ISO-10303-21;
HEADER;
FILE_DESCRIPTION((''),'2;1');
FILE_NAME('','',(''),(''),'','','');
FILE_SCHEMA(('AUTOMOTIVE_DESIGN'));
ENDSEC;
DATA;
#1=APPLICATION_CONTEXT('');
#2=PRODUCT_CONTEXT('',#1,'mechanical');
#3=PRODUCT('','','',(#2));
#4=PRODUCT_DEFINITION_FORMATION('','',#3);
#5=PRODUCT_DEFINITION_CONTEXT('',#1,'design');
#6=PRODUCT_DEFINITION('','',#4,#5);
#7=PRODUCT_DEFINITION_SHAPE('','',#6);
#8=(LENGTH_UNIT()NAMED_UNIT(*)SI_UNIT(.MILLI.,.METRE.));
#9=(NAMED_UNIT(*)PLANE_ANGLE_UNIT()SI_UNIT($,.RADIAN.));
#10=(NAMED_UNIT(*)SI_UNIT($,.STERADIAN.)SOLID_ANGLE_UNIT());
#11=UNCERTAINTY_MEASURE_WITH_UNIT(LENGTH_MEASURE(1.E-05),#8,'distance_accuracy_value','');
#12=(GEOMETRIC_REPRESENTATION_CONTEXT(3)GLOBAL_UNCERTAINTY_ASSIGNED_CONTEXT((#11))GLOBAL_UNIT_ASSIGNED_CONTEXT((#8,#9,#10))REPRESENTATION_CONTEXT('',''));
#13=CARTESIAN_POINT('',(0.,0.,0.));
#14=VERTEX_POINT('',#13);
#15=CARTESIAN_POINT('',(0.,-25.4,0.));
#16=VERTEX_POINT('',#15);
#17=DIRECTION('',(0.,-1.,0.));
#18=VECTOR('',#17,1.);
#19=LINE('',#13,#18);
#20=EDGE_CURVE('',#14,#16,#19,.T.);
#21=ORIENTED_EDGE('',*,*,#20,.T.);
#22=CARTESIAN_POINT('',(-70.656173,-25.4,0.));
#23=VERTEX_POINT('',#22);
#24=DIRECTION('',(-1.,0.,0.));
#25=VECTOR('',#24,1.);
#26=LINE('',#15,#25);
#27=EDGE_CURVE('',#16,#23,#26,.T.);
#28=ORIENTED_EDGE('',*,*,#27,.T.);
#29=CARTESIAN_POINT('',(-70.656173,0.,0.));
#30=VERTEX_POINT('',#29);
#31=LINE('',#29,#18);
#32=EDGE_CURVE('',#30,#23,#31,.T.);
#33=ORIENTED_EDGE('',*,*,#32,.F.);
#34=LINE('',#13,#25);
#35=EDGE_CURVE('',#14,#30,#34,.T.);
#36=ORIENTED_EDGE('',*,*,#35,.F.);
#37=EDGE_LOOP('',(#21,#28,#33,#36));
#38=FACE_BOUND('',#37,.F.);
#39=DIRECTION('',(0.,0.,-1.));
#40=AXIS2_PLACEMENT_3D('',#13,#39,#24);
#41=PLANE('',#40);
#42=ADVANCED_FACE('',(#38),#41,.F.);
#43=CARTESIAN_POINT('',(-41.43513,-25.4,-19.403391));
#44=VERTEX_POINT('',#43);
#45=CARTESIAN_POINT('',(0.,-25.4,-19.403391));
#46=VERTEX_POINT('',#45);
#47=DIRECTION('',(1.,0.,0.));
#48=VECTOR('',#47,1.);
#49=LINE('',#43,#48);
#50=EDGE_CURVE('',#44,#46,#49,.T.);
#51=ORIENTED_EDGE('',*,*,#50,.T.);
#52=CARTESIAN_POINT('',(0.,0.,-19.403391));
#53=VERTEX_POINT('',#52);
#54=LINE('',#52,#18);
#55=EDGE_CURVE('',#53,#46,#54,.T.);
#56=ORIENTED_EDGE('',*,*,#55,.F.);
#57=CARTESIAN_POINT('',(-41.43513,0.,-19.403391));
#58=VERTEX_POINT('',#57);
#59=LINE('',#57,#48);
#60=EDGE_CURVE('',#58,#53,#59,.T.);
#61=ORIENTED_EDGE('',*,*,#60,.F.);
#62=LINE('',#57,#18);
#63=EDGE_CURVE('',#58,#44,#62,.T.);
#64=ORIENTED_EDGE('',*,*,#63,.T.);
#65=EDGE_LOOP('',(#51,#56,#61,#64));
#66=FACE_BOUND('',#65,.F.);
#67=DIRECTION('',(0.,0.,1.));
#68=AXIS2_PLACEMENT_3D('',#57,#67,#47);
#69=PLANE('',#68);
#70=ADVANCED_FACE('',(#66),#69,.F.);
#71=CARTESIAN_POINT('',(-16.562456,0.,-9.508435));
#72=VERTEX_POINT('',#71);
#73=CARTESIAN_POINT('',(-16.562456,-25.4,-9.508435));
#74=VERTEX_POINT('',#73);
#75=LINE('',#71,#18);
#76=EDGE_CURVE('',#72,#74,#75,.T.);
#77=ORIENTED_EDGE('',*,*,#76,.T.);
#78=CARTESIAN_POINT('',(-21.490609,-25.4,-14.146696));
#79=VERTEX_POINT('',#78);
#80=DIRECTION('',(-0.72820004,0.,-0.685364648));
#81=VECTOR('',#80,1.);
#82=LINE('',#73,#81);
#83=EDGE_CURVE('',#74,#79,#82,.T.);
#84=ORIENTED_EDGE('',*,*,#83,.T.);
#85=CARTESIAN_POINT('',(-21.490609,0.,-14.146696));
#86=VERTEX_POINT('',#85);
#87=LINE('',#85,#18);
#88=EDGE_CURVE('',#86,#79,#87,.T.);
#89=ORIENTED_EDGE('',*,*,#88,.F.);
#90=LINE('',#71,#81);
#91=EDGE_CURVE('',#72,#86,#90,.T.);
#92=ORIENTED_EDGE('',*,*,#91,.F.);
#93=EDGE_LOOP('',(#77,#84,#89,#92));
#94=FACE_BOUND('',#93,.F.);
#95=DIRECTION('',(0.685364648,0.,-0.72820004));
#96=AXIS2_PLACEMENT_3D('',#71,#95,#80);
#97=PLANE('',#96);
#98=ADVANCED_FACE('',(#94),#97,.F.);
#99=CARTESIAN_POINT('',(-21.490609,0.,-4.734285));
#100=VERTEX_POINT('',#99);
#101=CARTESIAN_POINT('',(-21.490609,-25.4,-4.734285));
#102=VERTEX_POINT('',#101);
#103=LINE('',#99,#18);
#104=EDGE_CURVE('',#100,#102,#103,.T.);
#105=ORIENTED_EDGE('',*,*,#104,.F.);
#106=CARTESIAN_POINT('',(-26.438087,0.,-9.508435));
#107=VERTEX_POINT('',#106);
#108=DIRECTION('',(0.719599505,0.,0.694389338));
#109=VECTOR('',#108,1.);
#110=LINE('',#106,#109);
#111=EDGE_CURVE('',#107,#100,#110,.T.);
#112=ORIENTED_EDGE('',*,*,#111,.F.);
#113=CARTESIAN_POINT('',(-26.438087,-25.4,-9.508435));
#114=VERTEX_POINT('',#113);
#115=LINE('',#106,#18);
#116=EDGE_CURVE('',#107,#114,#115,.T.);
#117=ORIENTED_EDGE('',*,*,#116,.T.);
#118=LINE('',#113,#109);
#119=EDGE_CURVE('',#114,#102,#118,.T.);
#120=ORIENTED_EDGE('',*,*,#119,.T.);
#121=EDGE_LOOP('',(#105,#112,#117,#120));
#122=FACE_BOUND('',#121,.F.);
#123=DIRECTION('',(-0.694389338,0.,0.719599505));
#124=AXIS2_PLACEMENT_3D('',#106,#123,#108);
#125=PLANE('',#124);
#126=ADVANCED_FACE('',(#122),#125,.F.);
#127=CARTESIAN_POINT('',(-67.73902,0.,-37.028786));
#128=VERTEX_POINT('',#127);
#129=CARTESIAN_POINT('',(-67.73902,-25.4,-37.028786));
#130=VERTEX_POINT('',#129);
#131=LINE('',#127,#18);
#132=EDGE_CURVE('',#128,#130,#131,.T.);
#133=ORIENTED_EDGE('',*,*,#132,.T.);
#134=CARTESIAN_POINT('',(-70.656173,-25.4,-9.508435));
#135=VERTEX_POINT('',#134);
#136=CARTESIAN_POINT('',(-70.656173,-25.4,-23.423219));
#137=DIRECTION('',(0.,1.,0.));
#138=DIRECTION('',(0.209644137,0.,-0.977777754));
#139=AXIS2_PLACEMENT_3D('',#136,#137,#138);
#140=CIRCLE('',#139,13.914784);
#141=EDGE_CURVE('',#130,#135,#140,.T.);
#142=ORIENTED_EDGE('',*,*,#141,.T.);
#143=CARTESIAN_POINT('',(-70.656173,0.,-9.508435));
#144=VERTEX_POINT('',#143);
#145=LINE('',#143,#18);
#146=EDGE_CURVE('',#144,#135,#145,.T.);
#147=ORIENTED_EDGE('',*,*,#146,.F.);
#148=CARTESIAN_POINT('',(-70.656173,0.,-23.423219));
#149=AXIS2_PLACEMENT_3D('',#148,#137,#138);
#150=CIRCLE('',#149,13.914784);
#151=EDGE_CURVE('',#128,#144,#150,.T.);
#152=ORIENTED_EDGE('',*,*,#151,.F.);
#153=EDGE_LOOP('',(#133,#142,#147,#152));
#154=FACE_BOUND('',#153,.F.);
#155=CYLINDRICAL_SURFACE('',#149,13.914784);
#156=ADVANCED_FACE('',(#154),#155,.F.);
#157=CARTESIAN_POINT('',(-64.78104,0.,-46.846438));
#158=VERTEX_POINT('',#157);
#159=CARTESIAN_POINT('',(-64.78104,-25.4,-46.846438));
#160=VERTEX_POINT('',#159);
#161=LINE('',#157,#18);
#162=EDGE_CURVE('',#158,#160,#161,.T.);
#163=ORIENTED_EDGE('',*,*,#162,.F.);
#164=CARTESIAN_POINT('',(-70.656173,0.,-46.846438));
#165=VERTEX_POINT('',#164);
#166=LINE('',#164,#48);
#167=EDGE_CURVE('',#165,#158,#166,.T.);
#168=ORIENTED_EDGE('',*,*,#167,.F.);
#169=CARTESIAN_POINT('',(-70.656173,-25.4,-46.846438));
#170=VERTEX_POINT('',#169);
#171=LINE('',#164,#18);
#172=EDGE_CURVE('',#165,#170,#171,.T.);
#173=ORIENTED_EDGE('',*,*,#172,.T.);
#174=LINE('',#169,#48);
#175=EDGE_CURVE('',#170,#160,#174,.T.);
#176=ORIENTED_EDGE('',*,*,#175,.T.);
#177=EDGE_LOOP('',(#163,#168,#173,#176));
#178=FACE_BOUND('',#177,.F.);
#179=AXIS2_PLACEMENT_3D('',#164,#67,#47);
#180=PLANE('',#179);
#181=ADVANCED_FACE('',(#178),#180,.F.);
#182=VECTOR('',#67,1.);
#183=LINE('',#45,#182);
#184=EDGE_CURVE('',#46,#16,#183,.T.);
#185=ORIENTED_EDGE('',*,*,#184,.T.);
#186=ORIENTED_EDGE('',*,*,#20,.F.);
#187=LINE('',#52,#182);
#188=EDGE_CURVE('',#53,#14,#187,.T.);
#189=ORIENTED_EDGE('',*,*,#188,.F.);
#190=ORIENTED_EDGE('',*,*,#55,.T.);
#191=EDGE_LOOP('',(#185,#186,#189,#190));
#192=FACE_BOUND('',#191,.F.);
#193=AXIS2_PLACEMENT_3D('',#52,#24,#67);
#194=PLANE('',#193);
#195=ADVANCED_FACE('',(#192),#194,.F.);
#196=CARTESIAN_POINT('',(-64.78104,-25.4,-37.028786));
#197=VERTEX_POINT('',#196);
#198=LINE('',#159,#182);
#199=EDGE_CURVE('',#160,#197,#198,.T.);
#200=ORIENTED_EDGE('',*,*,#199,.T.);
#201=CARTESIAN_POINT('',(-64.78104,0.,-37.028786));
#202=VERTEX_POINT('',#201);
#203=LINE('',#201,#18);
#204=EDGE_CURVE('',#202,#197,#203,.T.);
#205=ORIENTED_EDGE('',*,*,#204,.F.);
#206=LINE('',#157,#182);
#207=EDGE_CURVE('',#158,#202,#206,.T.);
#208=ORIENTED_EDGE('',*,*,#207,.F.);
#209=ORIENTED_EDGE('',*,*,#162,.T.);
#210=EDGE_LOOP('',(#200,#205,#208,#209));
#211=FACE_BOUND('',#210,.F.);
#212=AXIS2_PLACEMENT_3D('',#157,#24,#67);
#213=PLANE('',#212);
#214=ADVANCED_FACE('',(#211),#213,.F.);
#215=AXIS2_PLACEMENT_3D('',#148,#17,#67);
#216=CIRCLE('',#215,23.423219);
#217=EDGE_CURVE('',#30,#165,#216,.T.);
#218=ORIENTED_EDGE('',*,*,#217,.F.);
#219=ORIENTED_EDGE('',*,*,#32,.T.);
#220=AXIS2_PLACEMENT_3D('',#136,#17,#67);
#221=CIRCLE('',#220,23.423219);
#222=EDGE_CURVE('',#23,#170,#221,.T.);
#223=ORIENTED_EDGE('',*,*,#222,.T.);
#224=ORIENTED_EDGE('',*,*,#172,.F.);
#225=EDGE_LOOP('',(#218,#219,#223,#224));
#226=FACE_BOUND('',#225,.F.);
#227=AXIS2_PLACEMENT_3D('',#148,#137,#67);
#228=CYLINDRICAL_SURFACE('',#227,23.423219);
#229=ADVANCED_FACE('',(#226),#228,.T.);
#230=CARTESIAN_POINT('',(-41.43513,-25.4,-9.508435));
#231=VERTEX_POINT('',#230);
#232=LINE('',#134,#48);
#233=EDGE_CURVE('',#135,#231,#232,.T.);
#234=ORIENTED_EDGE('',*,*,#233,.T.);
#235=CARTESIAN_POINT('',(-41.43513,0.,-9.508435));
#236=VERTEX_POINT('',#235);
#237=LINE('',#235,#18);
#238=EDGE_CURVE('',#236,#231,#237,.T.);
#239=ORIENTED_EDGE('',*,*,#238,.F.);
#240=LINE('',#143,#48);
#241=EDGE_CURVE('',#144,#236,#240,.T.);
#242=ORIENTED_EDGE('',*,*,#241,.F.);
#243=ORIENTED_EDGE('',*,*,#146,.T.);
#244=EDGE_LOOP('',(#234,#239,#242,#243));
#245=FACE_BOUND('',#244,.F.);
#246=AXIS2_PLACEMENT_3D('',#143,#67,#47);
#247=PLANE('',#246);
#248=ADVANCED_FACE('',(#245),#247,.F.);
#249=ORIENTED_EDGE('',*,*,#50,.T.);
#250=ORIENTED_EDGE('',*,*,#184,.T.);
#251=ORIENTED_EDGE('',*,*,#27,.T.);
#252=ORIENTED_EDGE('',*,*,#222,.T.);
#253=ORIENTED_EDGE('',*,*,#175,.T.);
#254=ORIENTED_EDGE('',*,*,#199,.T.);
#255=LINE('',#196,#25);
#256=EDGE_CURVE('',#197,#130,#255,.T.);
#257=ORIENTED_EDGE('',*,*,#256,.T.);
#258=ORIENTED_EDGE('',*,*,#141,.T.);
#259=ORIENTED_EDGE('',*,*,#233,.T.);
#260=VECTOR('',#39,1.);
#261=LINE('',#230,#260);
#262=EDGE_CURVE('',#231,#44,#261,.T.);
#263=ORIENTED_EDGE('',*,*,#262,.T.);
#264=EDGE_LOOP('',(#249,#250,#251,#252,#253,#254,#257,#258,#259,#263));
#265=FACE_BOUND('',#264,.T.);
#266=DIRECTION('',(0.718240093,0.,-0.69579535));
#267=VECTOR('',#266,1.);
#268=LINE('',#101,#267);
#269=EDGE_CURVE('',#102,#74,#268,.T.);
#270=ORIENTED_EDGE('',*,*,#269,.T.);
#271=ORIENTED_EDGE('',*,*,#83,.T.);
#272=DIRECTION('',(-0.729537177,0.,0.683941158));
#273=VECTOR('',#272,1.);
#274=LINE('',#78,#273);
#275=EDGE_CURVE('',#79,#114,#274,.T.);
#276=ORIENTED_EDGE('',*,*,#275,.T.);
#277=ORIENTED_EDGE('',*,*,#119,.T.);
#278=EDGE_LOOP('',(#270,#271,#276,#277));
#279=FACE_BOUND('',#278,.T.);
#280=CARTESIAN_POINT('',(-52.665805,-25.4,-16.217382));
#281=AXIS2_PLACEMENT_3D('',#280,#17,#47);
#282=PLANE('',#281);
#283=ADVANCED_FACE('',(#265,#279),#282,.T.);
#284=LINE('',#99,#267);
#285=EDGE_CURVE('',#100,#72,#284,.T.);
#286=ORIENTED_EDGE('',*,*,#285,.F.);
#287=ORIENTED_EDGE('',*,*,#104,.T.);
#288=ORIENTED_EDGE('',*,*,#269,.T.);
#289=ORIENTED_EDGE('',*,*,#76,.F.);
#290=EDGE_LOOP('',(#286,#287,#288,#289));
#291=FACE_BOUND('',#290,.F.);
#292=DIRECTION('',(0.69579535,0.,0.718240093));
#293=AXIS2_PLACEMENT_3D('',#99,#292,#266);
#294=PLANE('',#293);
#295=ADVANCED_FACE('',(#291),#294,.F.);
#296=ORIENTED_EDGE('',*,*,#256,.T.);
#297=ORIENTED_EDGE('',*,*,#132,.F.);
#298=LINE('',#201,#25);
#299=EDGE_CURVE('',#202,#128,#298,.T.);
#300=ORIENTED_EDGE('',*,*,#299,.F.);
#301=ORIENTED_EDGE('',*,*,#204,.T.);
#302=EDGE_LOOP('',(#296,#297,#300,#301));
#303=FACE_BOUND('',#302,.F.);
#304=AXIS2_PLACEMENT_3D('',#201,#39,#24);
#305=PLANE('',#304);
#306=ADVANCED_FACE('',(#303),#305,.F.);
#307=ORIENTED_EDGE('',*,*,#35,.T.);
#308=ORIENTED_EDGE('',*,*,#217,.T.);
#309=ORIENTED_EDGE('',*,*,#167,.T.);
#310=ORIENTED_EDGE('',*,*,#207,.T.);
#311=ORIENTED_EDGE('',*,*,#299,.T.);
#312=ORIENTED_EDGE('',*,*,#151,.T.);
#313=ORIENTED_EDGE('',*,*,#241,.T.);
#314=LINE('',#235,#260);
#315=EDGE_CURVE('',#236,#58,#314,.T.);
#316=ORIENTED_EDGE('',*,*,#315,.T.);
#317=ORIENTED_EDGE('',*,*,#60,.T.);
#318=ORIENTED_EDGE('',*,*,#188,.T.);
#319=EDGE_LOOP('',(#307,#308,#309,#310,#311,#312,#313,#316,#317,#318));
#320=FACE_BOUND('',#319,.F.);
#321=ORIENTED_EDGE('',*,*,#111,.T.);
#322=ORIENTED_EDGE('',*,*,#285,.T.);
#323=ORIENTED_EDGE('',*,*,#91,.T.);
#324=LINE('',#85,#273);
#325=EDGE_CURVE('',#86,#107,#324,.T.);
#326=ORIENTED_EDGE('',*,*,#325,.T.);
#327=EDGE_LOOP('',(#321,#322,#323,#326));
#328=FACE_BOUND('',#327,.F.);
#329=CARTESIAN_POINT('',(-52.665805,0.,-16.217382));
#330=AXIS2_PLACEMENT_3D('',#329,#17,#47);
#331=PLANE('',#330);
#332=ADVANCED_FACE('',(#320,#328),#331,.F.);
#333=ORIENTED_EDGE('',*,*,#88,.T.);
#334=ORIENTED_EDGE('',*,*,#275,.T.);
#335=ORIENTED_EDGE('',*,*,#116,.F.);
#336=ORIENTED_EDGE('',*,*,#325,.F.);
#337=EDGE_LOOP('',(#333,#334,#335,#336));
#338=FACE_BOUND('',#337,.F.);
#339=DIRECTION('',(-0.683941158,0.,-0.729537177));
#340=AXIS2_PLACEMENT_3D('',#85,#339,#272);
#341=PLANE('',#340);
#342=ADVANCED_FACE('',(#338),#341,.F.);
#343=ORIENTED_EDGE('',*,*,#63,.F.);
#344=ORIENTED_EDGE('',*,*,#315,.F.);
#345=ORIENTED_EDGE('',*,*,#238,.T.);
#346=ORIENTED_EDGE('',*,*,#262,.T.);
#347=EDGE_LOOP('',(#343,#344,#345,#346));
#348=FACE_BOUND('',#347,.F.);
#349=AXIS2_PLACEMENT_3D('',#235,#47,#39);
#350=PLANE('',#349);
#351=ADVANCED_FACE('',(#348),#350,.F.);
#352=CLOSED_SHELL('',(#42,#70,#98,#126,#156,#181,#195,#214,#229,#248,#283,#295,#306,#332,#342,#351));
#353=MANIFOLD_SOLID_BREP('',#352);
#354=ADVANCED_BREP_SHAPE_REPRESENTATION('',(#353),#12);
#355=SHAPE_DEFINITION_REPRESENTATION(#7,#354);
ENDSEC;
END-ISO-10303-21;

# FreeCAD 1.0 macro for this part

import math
import FreeCAD as App
import Part
import Sketcher
from FreeCAD import Vector
Q = App.Units.Quantity

doc = App.newDocument("Part")
body = doc.addObject("PartDesign::Body", "Body")

# Sketch on XZ plane
sketch1 = body.newObject("Sketcher::SketchObject", "Sketch")
sketch1.AttachmentSupport = (doc.getObject("XZ_Plane"), [""])
sketch1.MapMode = "FlatFace"
sketch1.addGeometry([
    Part.LineSegment(Vector(0, 0, 0), Vector(-70.656173, 0, 0)),  # 0
    Part.ArcOfCircle(Part.Circle(Vector(-70.656173, -23.423219, 0), Vector(0, 0, 1), 23.423219), math.radians(90), math.radians(270)),  # 1
    Part.LineSegment(Vector(-70.656173, -46.846438, 0), Vector(-64.78104, -46.846438, 0)),  # 2
    Part.LineSegment(Vector(-64.78104, -46.846438, 0), Vector(-64.78104, -37.028786, 0)),  # 3
    Part.LineSegment(Vector(-64.78104, -37.028786, 0), Vector(-67.73902, -37.028786, 0)),  # 4
    Part.ArcOfCircle(Part.Circle(Vector(-70.656173, -23.423219, 0), Vector(0, 0, 1), 13.914784), math.radians(90), math.radians(282.101499)),  # 5
    Part.LineSegment(Vector(-70.656173, -9.508435, 0), Vector(-41.43513, -9.508435, 0)),  # 6
    Part.LineSegment(Vector(-41.43513, -9.508435, 0), Vector(-41.43513, -19.403391, 0)),  # 7
    Part.LineSegment(Vector(-41.43513, -19.403391, 0), Vector(0, -19.403391, 0)),  # 8
    Part.LineSegment(Vector(0, -19.403391, 0), Vector(0, 0, 0)),  # 9
    Part.LineSegment(Vector(-21.490609, -14.146696, 0), Vector(-26.438087, -9.508435, 0)),  # 10
    Part.LineSegment(Vector(-26.438087, -9.508435, 0), Vector(-21.490609, -4.734285, 0)),  # 11
    Part.LineSegment(Vector(-21.490609, -4.734285, 0), Vector(-16.562456, -9.508435, 0)),  # 12
    Part.LineSegment(Vector(-16.562456, -9.508435, 0), Vector(-21.490609, -14.146696, 0)),  # 13
], False)
sketch1.addConstraint([
    Sketcher.Constraint("Tangent", 0, 2, 1, 1),
    Sketcher.Constraint("Tangent", 1, 2, 2, 1),
    Sketcher.Constraint("Coincident", 2, 2, 3, 1),
    Sketcher.Constraint("Coincident", 3, 2, 4, 1),
    Sketcher.Constraint("Coincident", 4, 2, 5, 2),
    Sketcher.Constraint("Tangent", 5, 1, 6, 1),
    Sketcher.Constraint("Coincident", 6, 2, 7, 1),
    Sketcher.Constraint("Coincident", 7, 2, 8, 1),
    Sketcher.Constraint("Coincident", 8, 2, 9, 1),
    Sketcher.Constraint("Coincident", 9, 2, 0, 1),
    Sketcher.Constraint("Coincident", 10, 2, 11, 1),
    Sketcher.Constraint("Coincident", 11, 2, 12, 1),
    Sketcher.Constraint("Coincident", 12, 2, 13, 1),
    Sketcher.Constraint("Coincident", 13, 2, 10, 1),
    Sketcher.Constraint("Horizontal", 0),
    Sketcher.Constraint("Horizontal", 2),
    Sketcher.Constraint("Vertical", 3),
    Sketcher.Constraint("Horizontal", 4),
    Sketcher.Constraint("Horizontal", 6),
    Sketcher.Constraint("Vertical", 7),
    Sketcher.Constraint("Horizontal", 8),
    Sketcher.Constraint("Vertical", 9),
    Sketcher.Constraint("Coincident", 9, 2, -1, 1),
    Sketcher.Constraint("Coincident", 5, 3, 1, 3),
    Sketcher.Constraint("Horizontal", 6, 2, 10, 2),
    Sketcher.Constraint("Horizontal", 10, 2, 12, 2),
    Sketcher.Constraint("Vertical", 11, 2, 13, 2),
    Sketcher.Constraint("Radius", 1, Q("23.423219 mm")),
    Sketcher.Constraint("Radius", 5, Q("13.914784 mm")),
    Sketcher.Constraint("DistanceX", 4, 2, 4, 1, Q("2.95798 mm")),
    Sketcher.Constraint("DistanceX", 8, 1, 8, 2, Q("41.43513 mm")),
    Sketcher.Constraint("DistanceY", 9, 1, 9, 2, Q("19.403391 mm")),
    Sketcher.Constraint("Distance", 11, Q("6.875322 mm")),
    Sketcher.Constraint("Distance", 12, Q("6.861428 mm")),
    Sketcher.Constraint("Distance", 13, Q("6.767581 mm")),
    Sketcher.Constraint("DistanceX", 0, 2, 0, 1, Q("70.656173 mm")),
    Sketcher.Constraint("DistanceX", 2, 1, 2, 2, Q("5.875133 mm")),
    Sketcher.Constraint("DistanceX", 11, 2, -1, 1, Q("21.490609 mm")),
    Sketcher.Constraint("DistanceX", 10, 2, 11, 2, Q("4.947478 mm")),
])
pad1 = body.newObject("PartDesign::Pad", "Pad")
pad1.Profile = sketch1
pad1.Length = Q("1 in")

doc.recompute()
